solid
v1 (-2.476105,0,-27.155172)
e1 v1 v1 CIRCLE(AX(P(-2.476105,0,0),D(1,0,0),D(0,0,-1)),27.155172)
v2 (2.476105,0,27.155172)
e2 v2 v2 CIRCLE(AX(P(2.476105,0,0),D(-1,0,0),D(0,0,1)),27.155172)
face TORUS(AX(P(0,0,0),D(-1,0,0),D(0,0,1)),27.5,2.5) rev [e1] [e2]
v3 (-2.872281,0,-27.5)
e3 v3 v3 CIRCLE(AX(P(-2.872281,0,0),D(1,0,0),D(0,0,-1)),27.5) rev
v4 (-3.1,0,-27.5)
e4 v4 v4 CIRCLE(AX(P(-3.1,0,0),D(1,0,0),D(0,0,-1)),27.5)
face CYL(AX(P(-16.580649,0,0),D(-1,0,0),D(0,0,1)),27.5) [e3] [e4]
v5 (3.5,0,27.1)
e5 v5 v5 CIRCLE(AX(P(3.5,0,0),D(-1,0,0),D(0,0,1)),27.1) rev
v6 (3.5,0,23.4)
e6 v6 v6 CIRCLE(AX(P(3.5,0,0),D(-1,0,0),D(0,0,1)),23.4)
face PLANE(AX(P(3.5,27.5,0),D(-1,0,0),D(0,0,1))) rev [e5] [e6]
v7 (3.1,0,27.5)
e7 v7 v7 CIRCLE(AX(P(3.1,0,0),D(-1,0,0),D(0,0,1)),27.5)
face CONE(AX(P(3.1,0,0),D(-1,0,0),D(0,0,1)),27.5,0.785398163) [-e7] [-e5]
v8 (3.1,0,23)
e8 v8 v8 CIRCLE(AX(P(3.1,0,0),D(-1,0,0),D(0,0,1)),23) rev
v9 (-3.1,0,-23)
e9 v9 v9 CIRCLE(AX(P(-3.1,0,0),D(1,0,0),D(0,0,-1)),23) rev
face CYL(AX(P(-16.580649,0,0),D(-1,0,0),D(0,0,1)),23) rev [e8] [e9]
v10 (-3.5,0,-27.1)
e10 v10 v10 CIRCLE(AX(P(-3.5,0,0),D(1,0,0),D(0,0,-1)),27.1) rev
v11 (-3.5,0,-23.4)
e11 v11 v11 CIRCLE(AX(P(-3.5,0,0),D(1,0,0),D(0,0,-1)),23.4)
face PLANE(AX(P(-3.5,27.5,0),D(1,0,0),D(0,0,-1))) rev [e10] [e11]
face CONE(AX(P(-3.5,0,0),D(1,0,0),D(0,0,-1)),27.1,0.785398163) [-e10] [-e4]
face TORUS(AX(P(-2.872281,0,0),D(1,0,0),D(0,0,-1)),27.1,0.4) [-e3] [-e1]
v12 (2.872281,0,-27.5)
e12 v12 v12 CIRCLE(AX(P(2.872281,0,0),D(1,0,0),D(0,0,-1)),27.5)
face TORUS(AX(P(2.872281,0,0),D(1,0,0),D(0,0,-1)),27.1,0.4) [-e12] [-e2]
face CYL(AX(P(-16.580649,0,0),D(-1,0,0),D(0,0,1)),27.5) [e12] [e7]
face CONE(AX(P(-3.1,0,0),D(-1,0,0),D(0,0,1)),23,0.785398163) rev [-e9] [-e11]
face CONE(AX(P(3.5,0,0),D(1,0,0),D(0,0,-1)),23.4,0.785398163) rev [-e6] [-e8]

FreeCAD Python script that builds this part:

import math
import FreeCAD as App
import Part
import Sketcher

V = App.Vector


def edges_at(feature, points):
    """Names of the edges that pass closest to the given points."""
    edges = feature.Shape.Edges
    near = lambda p: min(range(len(edges)), key=lambda i: edges[i].distToShape(Part.Vertex(*p))[0])
    return sorted({f"Edge{near(p) + 1}" for p in points})

doc = App.newDocument("Part")
body = doc.addObject("PartDesign::Body", "Body")

# Sketch on XY plane
sketch1 = body.newObject("Sketcher::SketchObject", "Sketch")
sketch1.AttachmentSupport = (doc.getObject("XY_Plane"), [""])
sketch1.MapMode = "FlatFace"
sketch1.addGeometry(Part.LineSegment(V(-3.5, 23, 0), V(3.5, 23, 0)), False)
sketch1.addGeometry(Part.LineSegment(V(3.5, 23, 0), V(3.5, 27.5, 0)), False)
sketch1.addGeometry(Part.LineSegment(V(3.5, 27.5, 0), V(2.5, 27.5, 0)), False)
sketch1.addGeometry(Part.ArcOfCircle(Part.Circle(V(0, 27.5, 0), V(0, 0, 1), 2.5), math.radians(180), math.radians(360)), False)
sketch1.addGeometry(Part.LineSegment(V(-2.5, 27.5, 0), V(-3.5, 27.5, 0)), False)
sketch1.addGeometry(Part.LineSegment(V(-3.5, 27.5, 0), V(-3.5, 23, 0)), False)
sketch1.addConstraint(Sketcher.Constraint("Coincident", 0, 2, 1, 1))
sketch1.addConstraint(Sketcher.Constraint("Coincident", 1, 2, 2, 1))
sketch1.addConstraint(Sketcher.Constraint("Coincident", 2, 2, 3, 2))
sketch1.addConstraint(Sketcher.Constraint("Coincident", 3, 1, 4, 1))
sketch1.addConstraint(Sketcher.Constraint("Coincident", 4, 2, 5, 1))
sketch1.addConstraint(Sketcher.Constraint("Coincident", 5, 2, 0, 1))
sketch1.addConstraint(Sketcher.Constraint("Horizontal", 0))
sketch1.addConstraint(Sketcher.Constraint("Vertical", 1))
sketch1.addConstraint(Sketcher.Constraint("Horizontal", 2))
sketch1.addConstraint(Sketcher.Constraint("Horizontal", 4))
sketch1.addConstraint(Sketcher.Constraint("Vertical", 5))
sketch1.addConstraint(Sketcher.Constraint("Symmetric", 2, 2, 3, 1, -2))
sketch1.addConstraint(Sketcher.Constraint("Horizontal", 3, 3, 1, 2))
sketch1.addConstraint(Sketcher.Constraint("Equal", 2, 4))
sketch1.addConstraint(Sketcher.Constraint("Radius", 3, 2.5))
sketch1.addConstraint(Sketcher.Constraint("DistanceX", 0, 1, 0, 2, 7.0))
sketch1.addConstraint(Sketcher.Constraint("DistanceY", 1, 1, 1, 2, 4.5))
sketch1.addConstraint(Sketcher.Constraint("DistanceY", -1, 1, 0, 2, 23.0))
revolution = body.newObject("PartDesign::Revolution", "Revolution")
revolution.Profile = sketch1
revolution.ReferenceAxis = (sketch1, ["H_Axis"])
revolution.Angle = 360
doc.recompute()

fillet = body.newObject("PartDesign::Fillet", "Fillet")
fillet.Base = (revolution, edges_at(revolution, [(2.5, 0, -27.5), (-2.5, 0, -27.5)]))
fillet.Radius = 0.4
doc.recompute()

chamfer = body.newObject("PartDesign::Chamfer", "Chamfer")
chamfer.Base = (fillet, edges_at(fillet, [
    (3.5, 0, -27.5),
    (3.5, 0, -23),
    (-3.5, 0, -23),
    (-3.5, 0, -27.5),
]))
chamfer.Size = 0.4

doc.recompute()
